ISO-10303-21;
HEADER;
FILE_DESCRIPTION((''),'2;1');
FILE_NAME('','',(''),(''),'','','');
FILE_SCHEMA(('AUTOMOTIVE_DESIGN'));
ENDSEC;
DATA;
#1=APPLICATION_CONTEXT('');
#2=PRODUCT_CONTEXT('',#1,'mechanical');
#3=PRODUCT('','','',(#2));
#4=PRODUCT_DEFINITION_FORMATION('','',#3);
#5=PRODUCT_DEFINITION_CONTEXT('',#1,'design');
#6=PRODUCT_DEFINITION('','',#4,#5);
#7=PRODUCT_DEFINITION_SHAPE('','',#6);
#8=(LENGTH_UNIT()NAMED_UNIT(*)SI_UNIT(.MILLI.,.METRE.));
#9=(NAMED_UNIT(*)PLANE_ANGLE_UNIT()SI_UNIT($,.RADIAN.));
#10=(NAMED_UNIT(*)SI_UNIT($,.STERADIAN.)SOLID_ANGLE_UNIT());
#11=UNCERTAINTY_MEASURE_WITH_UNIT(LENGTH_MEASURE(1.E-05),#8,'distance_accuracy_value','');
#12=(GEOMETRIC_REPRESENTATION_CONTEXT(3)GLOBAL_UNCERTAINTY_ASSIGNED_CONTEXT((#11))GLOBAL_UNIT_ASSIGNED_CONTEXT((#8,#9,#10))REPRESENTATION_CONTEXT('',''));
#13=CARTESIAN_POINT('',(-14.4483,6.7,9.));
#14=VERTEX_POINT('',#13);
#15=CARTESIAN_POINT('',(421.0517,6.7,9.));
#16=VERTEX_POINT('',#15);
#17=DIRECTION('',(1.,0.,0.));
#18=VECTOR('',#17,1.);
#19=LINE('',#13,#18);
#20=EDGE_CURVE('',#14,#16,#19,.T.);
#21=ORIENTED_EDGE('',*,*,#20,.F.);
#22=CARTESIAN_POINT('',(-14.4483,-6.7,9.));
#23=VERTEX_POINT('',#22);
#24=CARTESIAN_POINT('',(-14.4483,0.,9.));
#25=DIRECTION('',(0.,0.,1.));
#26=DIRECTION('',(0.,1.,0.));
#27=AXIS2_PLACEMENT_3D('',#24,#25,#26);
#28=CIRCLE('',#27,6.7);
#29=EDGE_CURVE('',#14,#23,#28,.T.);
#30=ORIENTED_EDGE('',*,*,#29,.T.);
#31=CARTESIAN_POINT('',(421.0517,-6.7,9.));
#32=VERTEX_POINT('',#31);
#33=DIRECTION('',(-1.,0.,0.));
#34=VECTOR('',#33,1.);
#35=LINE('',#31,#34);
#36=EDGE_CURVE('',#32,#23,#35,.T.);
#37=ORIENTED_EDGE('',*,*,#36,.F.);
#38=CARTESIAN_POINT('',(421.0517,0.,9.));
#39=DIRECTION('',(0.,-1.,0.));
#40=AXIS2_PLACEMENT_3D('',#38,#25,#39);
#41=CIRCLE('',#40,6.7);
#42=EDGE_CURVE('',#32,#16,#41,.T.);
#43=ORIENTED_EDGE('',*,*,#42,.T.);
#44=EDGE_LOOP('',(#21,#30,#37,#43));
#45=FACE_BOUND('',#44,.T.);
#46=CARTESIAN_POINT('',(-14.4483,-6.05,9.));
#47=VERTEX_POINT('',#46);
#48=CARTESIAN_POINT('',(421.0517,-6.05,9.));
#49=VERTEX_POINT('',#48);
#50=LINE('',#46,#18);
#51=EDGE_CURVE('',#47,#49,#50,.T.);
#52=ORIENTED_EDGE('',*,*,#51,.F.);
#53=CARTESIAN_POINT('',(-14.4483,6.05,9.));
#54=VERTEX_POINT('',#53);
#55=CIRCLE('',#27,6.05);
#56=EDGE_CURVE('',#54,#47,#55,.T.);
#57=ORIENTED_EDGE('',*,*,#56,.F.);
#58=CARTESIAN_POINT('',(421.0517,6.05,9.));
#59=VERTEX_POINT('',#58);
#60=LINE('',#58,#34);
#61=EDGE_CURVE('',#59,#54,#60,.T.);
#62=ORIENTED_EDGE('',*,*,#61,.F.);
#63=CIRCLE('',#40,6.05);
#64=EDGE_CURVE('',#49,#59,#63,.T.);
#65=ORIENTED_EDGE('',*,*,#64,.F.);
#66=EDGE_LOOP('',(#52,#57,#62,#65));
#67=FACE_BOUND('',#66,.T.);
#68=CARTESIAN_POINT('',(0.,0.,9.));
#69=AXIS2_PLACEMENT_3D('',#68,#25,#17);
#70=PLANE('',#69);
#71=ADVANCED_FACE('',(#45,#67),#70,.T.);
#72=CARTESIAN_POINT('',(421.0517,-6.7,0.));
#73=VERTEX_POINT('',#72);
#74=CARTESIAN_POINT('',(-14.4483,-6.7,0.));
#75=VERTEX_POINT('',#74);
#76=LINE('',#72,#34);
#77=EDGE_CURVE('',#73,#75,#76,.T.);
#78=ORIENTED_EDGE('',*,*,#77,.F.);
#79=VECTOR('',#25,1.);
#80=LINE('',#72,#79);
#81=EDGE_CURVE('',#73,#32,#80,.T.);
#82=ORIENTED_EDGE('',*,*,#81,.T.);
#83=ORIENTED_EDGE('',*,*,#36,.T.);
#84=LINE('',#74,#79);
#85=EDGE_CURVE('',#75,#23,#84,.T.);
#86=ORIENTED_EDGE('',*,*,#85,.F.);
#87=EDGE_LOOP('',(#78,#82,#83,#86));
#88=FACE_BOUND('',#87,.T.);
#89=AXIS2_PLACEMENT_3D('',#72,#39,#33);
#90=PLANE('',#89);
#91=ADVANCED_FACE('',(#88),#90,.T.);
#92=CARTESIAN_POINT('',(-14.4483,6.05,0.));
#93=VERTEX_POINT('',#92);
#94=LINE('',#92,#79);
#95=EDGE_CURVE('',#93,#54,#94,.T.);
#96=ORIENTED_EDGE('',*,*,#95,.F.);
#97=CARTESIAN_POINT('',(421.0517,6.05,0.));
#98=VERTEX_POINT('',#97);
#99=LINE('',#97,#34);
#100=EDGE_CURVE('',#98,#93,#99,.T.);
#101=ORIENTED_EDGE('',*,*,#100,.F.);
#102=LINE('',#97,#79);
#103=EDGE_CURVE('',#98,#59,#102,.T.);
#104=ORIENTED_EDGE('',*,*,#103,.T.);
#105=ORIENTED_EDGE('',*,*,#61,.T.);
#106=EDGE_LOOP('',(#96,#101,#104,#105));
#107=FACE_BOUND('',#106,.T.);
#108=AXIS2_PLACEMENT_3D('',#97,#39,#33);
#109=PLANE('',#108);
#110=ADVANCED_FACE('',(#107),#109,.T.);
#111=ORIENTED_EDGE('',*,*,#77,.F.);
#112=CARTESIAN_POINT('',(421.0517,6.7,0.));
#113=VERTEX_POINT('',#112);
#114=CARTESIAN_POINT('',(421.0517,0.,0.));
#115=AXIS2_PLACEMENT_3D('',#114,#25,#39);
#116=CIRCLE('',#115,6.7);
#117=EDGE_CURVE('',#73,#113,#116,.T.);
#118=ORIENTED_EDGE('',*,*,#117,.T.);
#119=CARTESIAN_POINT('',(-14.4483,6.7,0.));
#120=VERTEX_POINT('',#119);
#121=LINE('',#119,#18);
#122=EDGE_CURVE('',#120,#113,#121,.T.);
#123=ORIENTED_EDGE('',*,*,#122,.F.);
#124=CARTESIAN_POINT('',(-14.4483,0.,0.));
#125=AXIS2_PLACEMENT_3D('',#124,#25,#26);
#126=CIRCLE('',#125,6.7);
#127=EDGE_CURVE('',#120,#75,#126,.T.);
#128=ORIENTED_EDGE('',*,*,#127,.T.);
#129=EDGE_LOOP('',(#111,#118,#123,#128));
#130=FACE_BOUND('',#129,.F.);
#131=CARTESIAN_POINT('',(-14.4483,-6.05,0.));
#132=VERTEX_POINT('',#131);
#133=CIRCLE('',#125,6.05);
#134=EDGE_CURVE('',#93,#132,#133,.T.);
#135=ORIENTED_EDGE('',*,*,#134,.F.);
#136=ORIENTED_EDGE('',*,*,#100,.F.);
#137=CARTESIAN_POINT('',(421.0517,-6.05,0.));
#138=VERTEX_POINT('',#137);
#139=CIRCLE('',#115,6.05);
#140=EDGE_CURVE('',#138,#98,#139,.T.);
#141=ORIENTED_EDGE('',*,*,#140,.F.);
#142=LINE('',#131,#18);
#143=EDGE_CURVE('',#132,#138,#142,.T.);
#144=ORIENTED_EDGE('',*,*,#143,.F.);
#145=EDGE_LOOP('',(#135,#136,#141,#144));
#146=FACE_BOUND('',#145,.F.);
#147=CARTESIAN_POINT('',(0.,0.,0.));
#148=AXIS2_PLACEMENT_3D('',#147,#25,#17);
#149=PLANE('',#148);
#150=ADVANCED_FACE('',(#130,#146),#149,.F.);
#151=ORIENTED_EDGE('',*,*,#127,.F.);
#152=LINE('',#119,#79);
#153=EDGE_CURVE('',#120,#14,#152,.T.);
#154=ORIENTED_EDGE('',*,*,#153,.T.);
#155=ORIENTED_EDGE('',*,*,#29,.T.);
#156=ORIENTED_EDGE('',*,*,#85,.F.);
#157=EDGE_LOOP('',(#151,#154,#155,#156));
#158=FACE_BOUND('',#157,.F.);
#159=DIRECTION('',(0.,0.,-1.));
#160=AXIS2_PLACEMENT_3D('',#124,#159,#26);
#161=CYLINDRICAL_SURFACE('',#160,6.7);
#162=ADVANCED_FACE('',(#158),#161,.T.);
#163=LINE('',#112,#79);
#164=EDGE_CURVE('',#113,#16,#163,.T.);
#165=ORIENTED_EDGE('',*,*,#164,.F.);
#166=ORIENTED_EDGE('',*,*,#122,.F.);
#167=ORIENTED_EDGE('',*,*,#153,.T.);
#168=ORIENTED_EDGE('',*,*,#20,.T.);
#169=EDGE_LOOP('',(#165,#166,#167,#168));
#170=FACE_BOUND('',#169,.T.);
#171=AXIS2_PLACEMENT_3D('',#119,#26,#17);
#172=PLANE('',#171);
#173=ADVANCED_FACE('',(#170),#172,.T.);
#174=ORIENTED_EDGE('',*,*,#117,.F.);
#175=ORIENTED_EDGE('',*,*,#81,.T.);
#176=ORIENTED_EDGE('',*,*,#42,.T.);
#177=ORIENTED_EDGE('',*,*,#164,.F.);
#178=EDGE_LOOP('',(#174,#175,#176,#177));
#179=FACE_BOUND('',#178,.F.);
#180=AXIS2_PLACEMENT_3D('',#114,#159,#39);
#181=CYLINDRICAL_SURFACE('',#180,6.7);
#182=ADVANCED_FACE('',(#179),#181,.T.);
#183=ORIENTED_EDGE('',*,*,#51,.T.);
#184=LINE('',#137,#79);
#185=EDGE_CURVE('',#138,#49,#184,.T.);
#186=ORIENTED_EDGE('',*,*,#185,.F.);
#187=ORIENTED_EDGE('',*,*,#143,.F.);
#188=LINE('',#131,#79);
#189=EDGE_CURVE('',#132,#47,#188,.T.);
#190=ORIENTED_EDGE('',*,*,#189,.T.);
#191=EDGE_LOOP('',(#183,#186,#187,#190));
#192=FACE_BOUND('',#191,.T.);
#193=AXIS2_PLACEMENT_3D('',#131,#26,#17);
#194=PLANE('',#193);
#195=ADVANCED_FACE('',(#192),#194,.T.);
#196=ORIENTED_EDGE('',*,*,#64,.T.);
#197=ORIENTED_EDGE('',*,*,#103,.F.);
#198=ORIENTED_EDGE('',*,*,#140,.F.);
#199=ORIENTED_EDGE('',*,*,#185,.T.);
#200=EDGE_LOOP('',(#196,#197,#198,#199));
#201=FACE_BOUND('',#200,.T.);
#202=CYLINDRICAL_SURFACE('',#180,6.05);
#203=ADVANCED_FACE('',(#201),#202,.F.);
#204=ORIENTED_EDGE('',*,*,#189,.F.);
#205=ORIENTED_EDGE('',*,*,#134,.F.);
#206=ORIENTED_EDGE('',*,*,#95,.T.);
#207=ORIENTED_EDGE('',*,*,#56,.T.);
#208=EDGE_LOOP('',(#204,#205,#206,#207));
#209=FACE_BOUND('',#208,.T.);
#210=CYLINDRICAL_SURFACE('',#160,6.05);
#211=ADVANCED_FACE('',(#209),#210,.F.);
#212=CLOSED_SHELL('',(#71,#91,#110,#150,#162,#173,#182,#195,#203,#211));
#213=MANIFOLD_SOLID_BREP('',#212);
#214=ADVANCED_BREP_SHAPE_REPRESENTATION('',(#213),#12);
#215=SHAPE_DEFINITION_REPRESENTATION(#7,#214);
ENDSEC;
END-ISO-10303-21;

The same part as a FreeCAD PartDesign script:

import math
import FreeCAD as App
import Part
import Sketcher
Q = App.Units.Quantity

doc = App.newDocument("Part")
params = doc.addObject("Spreadsheet::Sheet", "Params")
for row, (alias, value) in enumerate([
    ("sketch1_radius", "6.05 mm"),
    ("sketch1_width", "435.5 mm"),
    ("sketch1_radius2", "6.7 mm"),
    ("pad1_length", "9 mm"),
], start=1):
    params.set(f"A{row}", alias)
    params.set(f"B{row}", "=" + value)
    params.setAlias(f"B{row}", alias)

body = doc.addObject("PartDesign::Body", "Body")

sketch1 = body.newObject("Sketcher::SketchObject", "Sketch")
sketch1.AttachmentSupport = (doc.getObject("XY_Plane"), [""])
sketch1.MapMode = "FlatFace"
sketch1.addGeometry([
    Part.LineSegment(App.Vector(421, 7, 0), App.Vector(-14, 7, 0)),
    Part.ArcOfCircle(Part.Circle(App.Vector(-14, 0, 0), App.Vector(0, 0, 1), 7), math.radians(90), math.radians(270)),
    Part.LineSegment(App.Vector(-14, -7, 0), App.Vector(421, -7, 0)),
    Part.ArcOfCircle(Part.Circle(App.Vector(421, 0, 0), App.Vector(0, 0, 1), 7), math.radians(-90), math.radians(90)),
    Part.LineSegment(App.Vector(421, -6, 0), App.Vector(-14, -6, 0)),
    Part.ArcOfCircle(Part.Circle(App.Vector(-14, 0, 0), App.Vector(0, 0, 1), 6), math.radians(90), math.radians(270)),
    Part.LineSegment(App.Vector(-14, 6, 0), App.Vector(421, 6, 0)),
    Part.ArcOfCircle(Part.Circle(App.Vector(421, 0, 0), App.Vector(0, 0, 1), 6), math.radians(-90), math.radians(90)),
], False)
sketch1.addConstraint([
    Sketcher.Constraint("Tangent", 0, 2, 1, 1),
    Sketcher.Constraint("Tangent", 1, 2, 2, 1),
    Sketcher.Constraint("Tangent", 2, 2, 3, 1),
    Sketcher.Constraint("Tangent", 3, 2, 0, 1),
    Sketcher.Constraint("Tangent", 4, 2, 5, 2),
    Sketcher.Constraint("Tangent", 5, 1, 6, 1),
    Sketcher.Constraint("Tangent", 6, 2, 7, 2),
    Sketcher.Constraint("Tangent", 7, 1, 4, 1),
    Sketcher.Constraint("Horizontal", 0),
    Sketcher.Constraint("Horizontal", 2),
    Sketcher.Constraint("Horizontal", 4),
    Sketcher.Constraint("Horizontal", 6),
    Sketcher.Constraint("Coincident", 5, 3, 1, 3),
    Sketcher.Constraint("PointOnObject", 1, 3, -1),
    Sketcher.Constraint("Vertical", 7, 3, 2, 2),
    Sketcher.Constraint("Radius", 5, Q("6.05 mm")),
    Sketcher.Constraint("DistanceX", 0, 2, 0, 1, Q("435.5 mm")),
    Sketcher.Constraint("Radius", 1, Q("6.7 mm")),
    Sketcher.Constraint("DistanceX", 1, 3, -1, 1, Q("14.4483 mm")),
])
sketch1.setExpression("Constraints[15]", "Params.sketch1_radius")
sketch1.setExpression("Constraints[16]", "Params.sketch1_width")
sketch1.setExpression("Constraints[17]", "Params.sketch1_radius2")
pad1 = body.newObject("PartDesign::Pad", "Pad")
pad1.Profile = sketch1
pad1.setExpression("Length", "Params.pad1_length")

doc.recompute()
